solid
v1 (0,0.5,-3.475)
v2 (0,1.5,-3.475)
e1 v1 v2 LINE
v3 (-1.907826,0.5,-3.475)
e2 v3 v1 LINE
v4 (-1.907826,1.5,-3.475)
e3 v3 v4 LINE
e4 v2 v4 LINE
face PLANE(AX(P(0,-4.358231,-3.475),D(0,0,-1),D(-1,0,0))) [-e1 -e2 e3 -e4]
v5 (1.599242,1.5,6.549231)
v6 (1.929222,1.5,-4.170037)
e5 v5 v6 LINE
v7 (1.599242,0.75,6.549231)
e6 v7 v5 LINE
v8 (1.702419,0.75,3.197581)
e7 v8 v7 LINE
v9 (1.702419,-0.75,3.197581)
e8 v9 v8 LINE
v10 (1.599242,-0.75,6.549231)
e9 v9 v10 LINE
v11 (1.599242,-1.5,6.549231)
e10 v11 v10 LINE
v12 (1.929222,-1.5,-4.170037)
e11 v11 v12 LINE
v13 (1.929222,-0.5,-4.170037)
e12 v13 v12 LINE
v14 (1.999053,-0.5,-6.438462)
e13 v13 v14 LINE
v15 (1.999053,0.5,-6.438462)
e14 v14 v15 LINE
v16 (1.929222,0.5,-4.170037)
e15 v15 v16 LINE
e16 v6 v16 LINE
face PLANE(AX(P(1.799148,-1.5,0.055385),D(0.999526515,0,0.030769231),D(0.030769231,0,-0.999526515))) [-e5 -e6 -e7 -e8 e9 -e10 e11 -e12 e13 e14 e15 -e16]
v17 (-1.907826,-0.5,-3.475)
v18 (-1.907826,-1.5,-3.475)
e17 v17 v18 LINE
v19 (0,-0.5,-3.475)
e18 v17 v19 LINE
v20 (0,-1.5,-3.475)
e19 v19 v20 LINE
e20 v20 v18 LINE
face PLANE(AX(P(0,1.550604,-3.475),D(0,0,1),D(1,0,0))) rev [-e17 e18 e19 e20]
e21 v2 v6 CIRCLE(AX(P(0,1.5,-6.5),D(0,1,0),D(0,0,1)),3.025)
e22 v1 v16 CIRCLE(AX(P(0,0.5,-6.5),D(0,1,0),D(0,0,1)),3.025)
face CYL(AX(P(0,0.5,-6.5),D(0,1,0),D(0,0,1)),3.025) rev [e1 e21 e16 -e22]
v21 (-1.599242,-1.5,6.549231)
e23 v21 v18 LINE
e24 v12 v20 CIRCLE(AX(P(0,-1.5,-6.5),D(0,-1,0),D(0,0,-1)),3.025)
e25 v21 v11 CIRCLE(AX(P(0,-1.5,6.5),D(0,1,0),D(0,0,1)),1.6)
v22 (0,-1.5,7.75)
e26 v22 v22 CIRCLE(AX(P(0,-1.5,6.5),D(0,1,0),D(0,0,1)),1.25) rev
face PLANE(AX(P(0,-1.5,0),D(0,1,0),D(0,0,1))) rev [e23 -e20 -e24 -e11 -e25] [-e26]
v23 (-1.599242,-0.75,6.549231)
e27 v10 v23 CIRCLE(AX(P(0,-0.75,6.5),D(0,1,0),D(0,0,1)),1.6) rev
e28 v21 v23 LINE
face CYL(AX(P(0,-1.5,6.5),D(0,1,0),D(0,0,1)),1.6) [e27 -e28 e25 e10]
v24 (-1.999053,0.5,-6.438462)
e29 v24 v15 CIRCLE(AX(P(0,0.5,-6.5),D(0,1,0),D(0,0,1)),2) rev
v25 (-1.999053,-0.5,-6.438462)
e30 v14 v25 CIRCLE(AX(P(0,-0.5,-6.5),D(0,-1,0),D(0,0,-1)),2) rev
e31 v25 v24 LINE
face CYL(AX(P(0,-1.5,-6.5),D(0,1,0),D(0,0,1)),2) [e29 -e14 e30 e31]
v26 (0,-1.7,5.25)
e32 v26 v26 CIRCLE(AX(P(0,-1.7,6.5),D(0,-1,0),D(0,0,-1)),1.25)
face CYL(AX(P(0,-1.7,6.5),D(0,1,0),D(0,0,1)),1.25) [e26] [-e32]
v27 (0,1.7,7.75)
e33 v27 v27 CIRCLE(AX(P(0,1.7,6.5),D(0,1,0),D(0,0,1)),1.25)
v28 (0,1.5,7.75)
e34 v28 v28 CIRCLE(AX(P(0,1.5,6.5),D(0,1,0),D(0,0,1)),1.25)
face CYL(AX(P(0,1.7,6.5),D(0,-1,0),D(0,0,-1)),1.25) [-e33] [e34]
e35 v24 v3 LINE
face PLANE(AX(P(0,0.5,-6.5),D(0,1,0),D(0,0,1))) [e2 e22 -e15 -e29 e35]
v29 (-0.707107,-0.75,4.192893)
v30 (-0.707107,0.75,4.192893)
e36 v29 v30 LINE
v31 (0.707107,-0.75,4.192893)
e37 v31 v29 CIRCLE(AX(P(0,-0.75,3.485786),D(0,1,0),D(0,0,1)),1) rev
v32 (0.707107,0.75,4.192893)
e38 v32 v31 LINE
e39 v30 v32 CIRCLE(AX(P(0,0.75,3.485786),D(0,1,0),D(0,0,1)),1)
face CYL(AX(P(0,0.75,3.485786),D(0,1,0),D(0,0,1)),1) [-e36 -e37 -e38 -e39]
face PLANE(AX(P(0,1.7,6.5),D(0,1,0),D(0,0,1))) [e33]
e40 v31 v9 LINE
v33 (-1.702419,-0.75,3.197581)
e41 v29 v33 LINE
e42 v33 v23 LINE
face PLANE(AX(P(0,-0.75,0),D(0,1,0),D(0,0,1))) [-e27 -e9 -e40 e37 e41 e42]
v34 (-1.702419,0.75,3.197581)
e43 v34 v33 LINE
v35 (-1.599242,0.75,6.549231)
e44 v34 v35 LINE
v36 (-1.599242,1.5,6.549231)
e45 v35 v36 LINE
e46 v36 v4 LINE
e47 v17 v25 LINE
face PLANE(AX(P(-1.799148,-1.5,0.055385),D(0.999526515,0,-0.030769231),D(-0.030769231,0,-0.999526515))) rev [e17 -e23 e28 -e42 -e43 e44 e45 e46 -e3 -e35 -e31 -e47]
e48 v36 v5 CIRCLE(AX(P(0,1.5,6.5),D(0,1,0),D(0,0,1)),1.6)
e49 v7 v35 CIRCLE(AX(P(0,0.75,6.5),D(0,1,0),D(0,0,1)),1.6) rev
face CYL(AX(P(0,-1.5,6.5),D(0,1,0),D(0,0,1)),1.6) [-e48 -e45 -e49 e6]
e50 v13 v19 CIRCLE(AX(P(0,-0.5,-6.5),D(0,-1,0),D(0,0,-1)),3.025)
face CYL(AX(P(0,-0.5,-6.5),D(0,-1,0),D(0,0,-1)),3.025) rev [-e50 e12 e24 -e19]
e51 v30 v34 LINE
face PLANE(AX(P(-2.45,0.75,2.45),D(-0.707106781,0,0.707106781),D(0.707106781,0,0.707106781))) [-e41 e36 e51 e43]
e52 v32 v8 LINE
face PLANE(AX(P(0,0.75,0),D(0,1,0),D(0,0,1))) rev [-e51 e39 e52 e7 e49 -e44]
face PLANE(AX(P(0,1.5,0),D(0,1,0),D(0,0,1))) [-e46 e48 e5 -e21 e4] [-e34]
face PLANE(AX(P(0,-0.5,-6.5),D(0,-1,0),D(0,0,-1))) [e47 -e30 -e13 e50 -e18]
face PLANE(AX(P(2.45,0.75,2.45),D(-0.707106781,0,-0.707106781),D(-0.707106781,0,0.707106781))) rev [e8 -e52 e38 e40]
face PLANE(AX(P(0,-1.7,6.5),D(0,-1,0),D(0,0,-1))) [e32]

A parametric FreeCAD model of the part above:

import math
import FreeCAD as App
import Part
import Sketcher
from FreeCAD import Vector
Q = App.Units.Quantity


def edges_at(feature, points):
    """Names of the edges that pass closest to the given points."""
    edges = feature.Shape.Edges
    near = lambda p: min(range(len(edges)), key=lambda i: edges[i].distToShape(Part.Vertex(*p))[0])
    return sorted({f"Edge{near(p) + 1}" for p in points})

doc = App.newDocument("Part")
body = doc.addObject("PartDesign::Body", "Body")

sketch1 = body.newObject("Sketcher::SketchObject", "Sketch")
sketch1.AttachmentSupport = (doc.getObject("XZ_Plane"), [""])
sketch1.MapMode = "FlatFace"
sketch1.addGeometry([
    Part.ArcOfCircle(Part.Circle(Vector(0, 6.5, 0), Vector(0, 0, 1), 1.6), math.radians(1.763225), math.radians(178.236775)),
    Part.LineSegment(Vector(1.599242, 6.549231, 0), Vector(1.999053, -6.438462, 0)),
    Part.ArcOfCircle(Part.Circle(Vector(0, -6.5, 0), Vector(0, 0, 1), 2), math.radians(178.236775), math.radians(361.763225)),
    Part.LineSegment(Vector(-1.999053, -6.438462, 0), Vector(-1.599242, 6.549231, 0)),
], False)
sketch1.addConstraint([
    Sketcher.Constraint("Tangent", 0, 1, 1, 1),
    Sketcher.Constraint("Tangent", 1, 2, 2, 2),
    Sketcher.Constraint("Tangent", 2, 1, 3, 1),
    Sketcher.Constraint("Tangent", 3, 2, 0, 2),
    Sketcher.Constraint("Symmetric", 0, 3, 2, 3, -1, 1),
    Sketcher.Constraint("PointOnObject", 0, 3, -2),
    Sketcher.Constraint("Radius", 2, 2.0),
    Sketcher.Constraint("Radius", 0, 1.6),
    Sketcher.Constraint("DistanceY", 2, 3, 0, 3, 13.0),
])
pad1 = body.newObject("PartDesign::Pad", "Pad")
pad1.Profile = sketch1
pad1.Type = "TwoLengths"
pad1.Length = 1.5
pad1.Length2 = 1.5
pad1.Reversed = True

sketch2 = body.newObject("Sketcher::SketchObject", "Sketch001")
sketch2.AttachmentSupport = (doc.getObject("XZ_Plane"), [""])
sketch2.MapMode = "FlatFace"
sketch2.AttachmentOffset = App.Placement(Vector(0, 0, -1.5), App.Rotation())
sketch2.addGeometry(Part.Circle(Vector(0, -6.5, 0), Vector(0, 0, 1), 3.025), False)
sketch2.addConstraint([
    Sketcher.Constraint("PointOnObject", 0, 3, -2),
    Sketcher.Constraint("Diameter", 0, 6.05),
    Sketcher.Constraint("DistanceY", 0, 3, -1, 1, 6.5),
])
pocket1 = body.newObject("PartDesign::Pocket", "Pocket")
pocket1.Profile = sketch2
pocket1.Length = 1
pocket1.Reversed = True

sketch3 = body.newObject("Sketcher::SketchObject", "Sketch002")
sketch3.AttachmentSupport = (doc.getObject("XZ_Plane"), [""])
sketch3.MapMode = "FlatFace"
sketch3.AttachmentOffset = App.Placement(Vector(0, 0, 0.5), App.Rotation())
sketch3.addGeometry(Part.Circle(Vector(0, -6.5, 0), Vector(0, 0, 1), 3.025), False)
sketch3.addConstraint([
    Sketcher.Constraint("PointOnObject", 0, 3, -2),
    Sketcher.Constraint("Diameter", 0, 6.05),
    Sketcher.Constraint("DistanceY", 0, 3, -1, 1, 6.5),
])
pocket2 = body.newObject("PartDesign::Pocket", "Pocket001")
pocket2.Profile = sketch3
pocket2.Length = 1
pocket2.Reversed = True

sketch4 = body.newObject("Sketcher::SketchObject", "Sketch003")
sketch4.AttachmentSupport = (doc.getObject("XZ_Plane"), [""])
sketch4.MapMode = "FlatFace"
sketch4.addGeometry([
    Part.LineSegment(Vector(-163.946907, -159.046907, 0), Vector(-163.946907, 6.5, 0)),
    Part.LineSegment(Vector(-163.946907, 6.5, 0), Vector(0, 276.849986, 0)),
    Part.LineSegment(Vector(0, 276.849986, 0), Vector(161.955463, 6.5, 0)),
    Part.LineSegment(Vector(161.955463, 6.5, 0), Vector(161.955463, -157.055463, 0)),
    Part.LineSegment(Vector(161.955463, -157.055463, 0), Vector(0, 4.9, 0)),
    Part.LineSegment(Vector(0, 4.9, 0), Vector(-163.946907, -159.046907, 0)),
], False)
sketch4.addConstraint([
    Sketcher.Constraint("Coincident", 0, 2, 1, 1),
    Sketcher.Constraint("Coincident", 1, 2, 2, 1),
    Sketcher.Constraint("Coincident", 2, 2, 3, 1),
    Sketcher.Constraint("Coincident", 3, 2, 4, 1),
    Sketcher.Constraint("Coincident", 4, 2, 5, 1),
    Sketcher.Constraint("Coincident", 5, 2, 0, 1),
    Sketcher.Constraint("Vertical", 0),
    Sketcher.Constraint("Vertical", 3),
    Sketcher.Constraint("PointOnObject", 1, 2, -2),
    Sketcher.Constraint("PointOnObject", 4, 2, -2),
    Sketcher.Constraint("Perpendicular", 4, 5),
    Sketcher.Constraint("Horizontal", 0, 2, 2, 2),
    Sketcher.Constraint("Angle", 4, Q("135 deg")),
    Sketcher.Constraint("DistanceY", -1, 1, 0, 2, 6.5),
    Sketcher.Constraint("DistanceY", -1, 1, 4, 2, 4.9),
    Sketcher.Constraint("Distance", 5, 231.855939),
    Sketcher.Constraint("DistanceY", 3, 2, 3, 1, 163.555463),
    Sketcher.Constraint("DistanceY", 3, 2, 1, 2, 433.905449),
])
pocket3 = body.newObject("PartDesign::Pocket", "Pocket002")
pocket3.Profile = sketch4
pocket3.Type = "TwoLengths"
pocket3.Length = 0.75
pocket3.Length2 = 0.75
doc.recompute()

fillet = body.newObject("PartDesign::Fillet", "Fillet")
fillet.Base = (pocket3, edges_at(pocket3, [(0, 0, 4.9)]))
fillet.Radius = 1

sketch5 = body.newObject("Sketcher::SketchObject", "Sketch004")
sketch5.AttachmentSupport = (doc.getObject("XZ_Plane"), [""])
sketch5.MapMode = "FlatFace"
sketch5.AttachmentOffset = App.Placement(Vector(0, 0, -1.5), App.Rotation())
sketch5.addGeometry(Part.Circle(Vector(0, 6.5, 0), Vector(0, 0, 1), 1.25), False)
sketch5.addConstraint([
    Sketcher.Constraint("PointOnObject", 0, 3, -2),
    Sketcher.Constraint("Diameter", 0, 2.5),
    Sketcher.Constraint("DistanceY", -1, 1, 0, 3, 6.5),
])
pad2 = body.newObject("PartDesign::Pad", "Pad001")
pad2.Profile = sketch5
pad2.Length = 0.2
pad2.Reversed = True

sketch6 = body.newObject("Sketcher::SketchObject", "Sketch005")
sketch6.AttachmentSupport = (doc.getObject("XZ_Plane"), [""])
sketch6.MapMode = "FlatFace"
sketch6.AttachmentOffset = App.Placement(Vector(0, 0, 1.7), App.Rotation())
sketch6.addGeometry(Part.Circle(Vector(0, 6.5, 0), Vector(0, 0, 1), 1.25), False)
sketch6.addConstraint([
    Sketcher.Constraint("PointOnObject", 0, 3, -2),
    Sketcher.Constraint("Diameter", 0, 2.5),
    Sketcher.Constraint("DistanceY", -1, 1, 0, 3, 6.5),
])
pad3 = body.newObject("PartDesign::Pad", "Pad002")
pad3.Profile = sketch6
pad3.Length = 0.2
pad3.Reversed = True

sketch7 = body.newObject("Sketcher::SketchObject", "Sketch006")
sketch7.AttachmentSupport = (doc.getObject("XZ_Plane"), [""])
sketch7.MapMode = "FlatFace"
sketch7.AttachmentOffset = App.Placement(Vector(0, 0, -1.5), App.Rotation())
sketch7.addGeometry([
    Part.LineSegment(Vector(-1.907826, -3.475, 0), Vector(0, -3.475, 0)),
    Part.ArcOfCircle(Part.Circle(Vector(0, -6.5, 0), Vector(0, 0, 1), 3.025), math.radians(90), math.radians(129.624948)),
    Part.LineSegment(Vector(-1.929222, -4.170037, 0), Vector(-1.907826, -3.475, 0)),
], False)
sketch7.addConstraint([
    Sketcher.Constraint("Tangent", 0, 2, 1, 1),
    Sketcher.Constraint("Coincident", 1, 2, 2, 1),
    Sketcher.Constraint("Coincident", 2, 2, 0, 1),
    Sketcher.Constraint("Horizontal", 0),
    Sketcher.Constraint("PointOnObject", 1, 3, -2),
    Sketcher.Constraint("Radius", 1, 3.025),
    Sketcher.Constraint("DistanceY", 1, 3, -1, 1, 6.5),
    Sketcher.Constraint("DistanceX", 0, 1, 0, 2, 1.907826),
    Sketcher.Constraint("Distance", 2, 0.695367),
])
pocket4 = body.newObject("PartDesign::Pocket", "Pocket003")
pocket4.Profile = sketch7
pocket4.Length = 1
pocket4.Reversed = True

sketch8 = body.newObject("Sketcher::SketchObject", "Sketch007")
sketch8.AttachmentSupport = (doc.getObject("XZ_Plane"), [""])
sketch8.MapMode = "FlatFace"
sketch8.AttachmentOffset = App.Placement(Vector(0, 0, 0.5), App.Rotation())
sketch8.addGeometry([
    Part.ArcOfCircle(Part.Circle(Vector(0, -6.5, 0), Vector(0, 0, 1), 3.025), math.radians(90), math.radians(129.624948)),
    Part.LineSegment(Vector(0, -3.475, 0), Vector(-1.907826, -3.475, 0)),
    Part.LineSegment(Vector(-1.907826, -3.475, 0), Vector(-1.929222, -4.170037, 0)),
], False)
sketch8.addConstraint([
    Sketcher.Constraint("Tangent", 0, 1, 1, 1),
    Sketcher.Constraint("Coincident", 1, 2, 2, 1),
    Sketcher.Constraint("Coincident", 2, 2, 0, 2),
    Sketcher.Constraint("Horizontal", 1),
    Sketcher.Constraint("PointOnObject", 0, 3, -2),
    Sketcher.Constraint("Radius", 0, 3.025),
    Sketcher.Constraint("DistanceY", 0, 3, -1, 1, 6.5),
    Sketcher.Constraint("DistanceX", 1, 2, 1, 1, 1.907826),
    Sketcher.Constraint("Distance", 2, 0.695367),
])
pocket5 = body.newObject("PartDesign::Pocket", "Pocket004")
pocket5.Profile = sketch8
pocket5.Length = 1
pocket5.Reversed = True

doc.recompute()
